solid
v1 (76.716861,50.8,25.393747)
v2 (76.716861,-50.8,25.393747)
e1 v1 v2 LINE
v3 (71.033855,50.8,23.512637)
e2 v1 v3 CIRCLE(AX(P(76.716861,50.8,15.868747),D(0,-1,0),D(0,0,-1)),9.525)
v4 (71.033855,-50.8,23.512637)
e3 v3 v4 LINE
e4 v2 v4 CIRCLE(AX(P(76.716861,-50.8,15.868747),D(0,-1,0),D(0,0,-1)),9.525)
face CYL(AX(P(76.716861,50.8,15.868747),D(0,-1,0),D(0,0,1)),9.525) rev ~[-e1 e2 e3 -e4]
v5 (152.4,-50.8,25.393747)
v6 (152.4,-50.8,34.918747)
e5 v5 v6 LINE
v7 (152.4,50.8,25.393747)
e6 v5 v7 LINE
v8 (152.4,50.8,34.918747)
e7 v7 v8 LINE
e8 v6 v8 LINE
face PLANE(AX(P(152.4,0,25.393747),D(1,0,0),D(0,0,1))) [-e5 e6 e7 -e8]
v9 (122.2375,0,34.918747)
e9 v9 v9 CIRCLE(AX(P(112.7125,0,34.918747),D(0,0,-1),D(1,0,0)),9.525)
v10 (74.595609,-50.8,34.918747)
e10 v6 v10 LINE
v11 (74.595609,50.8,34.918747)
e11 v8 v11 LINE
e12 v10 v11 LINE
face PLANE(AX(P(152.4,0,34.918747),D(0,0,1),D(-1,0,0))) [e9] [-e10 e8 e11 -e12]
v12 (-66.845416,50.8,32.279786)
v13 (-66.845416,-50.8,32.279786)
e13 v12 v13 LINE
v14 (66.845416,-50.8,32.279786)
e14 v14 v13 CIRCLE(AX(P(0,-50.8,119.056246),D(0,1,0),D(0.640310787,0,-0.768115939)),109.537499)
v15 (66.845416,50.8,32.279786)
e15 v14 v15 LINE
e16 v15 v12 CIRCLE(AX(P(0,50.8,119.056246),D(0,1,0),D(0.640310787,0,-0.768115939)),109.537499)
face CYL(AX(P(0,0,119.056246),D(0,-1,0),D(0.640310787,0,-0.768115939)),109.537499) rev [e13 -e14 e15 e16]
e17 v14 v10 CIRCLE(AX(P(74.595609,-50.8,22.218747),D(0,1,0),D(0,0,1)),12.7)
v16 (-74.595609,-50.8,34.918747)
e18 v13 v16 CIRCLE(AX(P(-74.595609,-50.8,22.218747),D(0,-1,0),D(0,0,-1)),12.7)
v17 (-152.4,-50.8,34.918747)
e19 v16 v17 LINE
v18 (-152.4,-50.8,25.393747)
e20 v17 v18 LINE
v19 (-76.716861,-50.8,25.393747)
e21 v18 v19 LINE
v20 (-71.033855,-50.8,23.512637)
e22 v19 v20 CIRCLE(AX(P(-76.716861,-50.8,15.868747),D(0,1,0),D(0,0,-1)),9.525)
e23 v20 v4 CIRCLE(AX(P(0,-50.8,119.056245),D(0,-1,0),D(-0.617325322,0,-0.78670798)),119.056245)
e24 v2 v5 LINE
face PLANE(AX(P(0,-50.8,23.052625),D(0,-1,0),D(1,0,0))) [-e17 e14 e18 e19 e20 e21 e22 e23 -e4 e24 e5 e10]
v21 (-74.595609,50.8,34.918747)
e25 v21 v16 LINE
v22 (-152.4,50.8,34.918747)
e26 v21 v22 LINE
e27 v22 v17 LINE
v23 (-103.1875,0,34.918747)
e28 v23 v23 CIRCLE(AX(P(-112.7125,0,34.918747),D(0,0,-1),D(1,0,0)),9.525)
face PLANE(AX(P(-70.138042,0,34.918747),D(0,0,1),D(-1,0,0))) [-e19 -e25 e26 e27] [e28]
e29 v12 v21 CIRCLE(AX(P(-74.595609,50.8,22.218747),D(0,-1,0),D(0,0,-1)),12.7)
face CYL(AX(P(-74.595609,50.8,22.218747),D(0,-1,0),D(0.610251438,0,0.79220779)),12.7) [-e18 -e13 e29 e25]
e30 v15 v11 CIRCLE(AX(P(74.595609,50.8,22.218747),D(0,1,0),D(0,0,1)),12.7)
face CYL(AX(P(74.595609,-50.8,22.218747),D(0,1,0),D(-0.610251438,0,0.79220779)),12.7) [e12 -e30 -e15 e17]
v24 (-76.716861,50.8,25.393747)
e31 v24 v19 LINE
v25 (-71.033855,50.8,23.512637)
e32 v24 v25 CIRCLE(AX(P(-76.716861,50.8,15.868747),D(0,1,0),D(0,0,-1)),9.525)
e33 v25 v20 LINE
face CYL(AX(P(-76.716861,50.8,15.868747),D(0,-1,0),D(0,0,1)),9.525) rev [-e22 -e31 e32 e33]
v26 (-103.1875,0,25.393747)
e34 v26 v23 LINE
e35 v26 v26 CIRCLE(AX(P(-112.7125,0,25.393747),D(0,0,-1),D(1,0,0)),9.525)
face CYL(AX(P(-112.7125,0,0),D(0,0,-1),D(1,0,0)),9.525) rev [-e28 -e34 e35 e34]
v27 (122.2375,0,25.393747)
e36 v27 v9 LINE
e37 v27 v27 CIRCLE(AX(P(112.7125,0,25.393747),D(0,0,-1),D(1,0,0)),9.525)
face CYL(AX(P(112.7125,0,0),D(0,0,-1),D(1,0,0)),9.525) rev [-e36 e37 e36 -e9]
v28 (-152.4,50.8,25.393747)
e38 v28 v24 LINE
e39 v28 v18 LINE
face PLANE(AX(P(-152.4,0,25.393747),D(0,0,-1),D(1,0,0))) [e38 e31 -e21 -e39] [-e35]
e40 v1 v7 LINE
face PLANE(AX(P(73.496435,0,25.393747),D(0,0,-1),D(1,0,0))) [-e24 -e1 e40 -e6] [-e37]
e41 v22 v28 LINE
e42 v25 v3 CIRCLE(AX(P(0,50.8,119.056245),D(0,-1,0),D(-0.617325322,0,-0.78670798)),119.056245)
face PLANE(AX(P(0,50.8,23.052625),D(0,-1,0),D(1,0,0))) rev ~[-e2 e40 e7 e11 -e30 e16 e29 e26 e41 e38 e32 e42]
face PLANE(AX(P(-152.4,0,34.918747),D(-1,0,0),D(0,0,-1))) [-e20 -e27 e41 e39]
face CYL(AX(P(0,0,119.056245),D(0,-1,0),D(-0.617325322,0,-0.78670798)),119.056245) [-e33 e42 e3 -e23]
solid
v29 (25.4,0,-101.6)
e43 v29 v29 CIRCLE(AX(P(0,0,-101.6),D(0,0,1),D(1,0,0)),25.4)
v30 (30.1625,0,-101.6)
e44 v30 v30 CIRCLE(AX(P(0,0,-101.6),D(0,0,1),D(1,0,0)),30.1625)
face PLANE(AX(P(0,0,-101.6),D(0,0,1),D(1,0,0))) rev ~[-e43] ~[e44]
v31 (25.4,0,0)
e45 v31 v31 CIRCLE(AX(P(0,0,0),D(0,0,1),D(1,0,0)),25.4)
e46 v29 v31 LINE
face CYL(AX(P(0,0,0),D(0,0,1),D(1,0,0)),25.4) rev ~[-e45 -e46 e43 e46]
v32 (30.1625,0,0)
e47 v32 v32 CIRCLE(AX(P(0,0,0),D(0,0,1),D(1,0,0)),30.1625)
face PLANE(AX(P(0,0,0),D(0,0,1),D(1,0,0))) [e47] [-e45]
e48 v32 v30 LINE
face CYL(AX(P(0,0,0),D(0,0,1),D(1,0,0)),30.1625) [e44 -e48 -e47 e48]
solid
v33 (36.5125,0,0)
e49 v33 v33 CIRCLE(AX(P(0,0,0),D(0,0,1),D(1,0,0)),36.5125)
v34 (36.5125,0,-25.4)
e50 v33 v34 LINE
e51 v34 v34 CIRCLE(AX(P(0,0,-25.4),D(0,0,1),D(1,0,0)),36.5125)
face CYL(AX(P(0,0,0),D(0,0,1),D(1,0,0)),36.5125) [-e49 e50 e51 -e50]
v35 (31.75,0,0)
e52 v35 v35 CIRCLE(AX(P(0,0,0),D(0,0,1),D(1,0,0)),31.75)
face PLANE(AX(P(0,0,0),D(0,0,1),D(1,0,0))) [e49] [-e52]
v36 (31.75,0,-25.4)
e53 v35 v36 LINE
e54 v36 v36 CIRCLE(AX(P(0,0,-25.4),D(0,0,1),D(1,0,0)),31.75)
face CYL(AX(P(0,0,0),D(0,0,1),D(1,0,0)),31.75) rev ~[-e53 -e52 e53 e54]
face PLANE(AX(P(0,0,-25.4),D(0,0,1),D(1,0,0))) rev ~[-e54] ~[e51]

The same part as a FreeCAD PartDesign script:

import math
import FreeCAD as App
import Part
import Sketcher
from FreeCAD import Vector
Q = App.Units.Quantity


def edges_at(feature, points):
    """Names of the edges that pass closest to the given points."""
    edges = feature.Shape.Edges
    near = lambda p: min(range(len(edges)), key=lambda i: edges[i].distToShape(Part.Vertex(*p))[0])
    return sorted({f"Edge{near(p) + 1}" for p in points})

doc = App.newDocument("Part")
body = doc.addObject("PartDesign::Body", "Body")

# Sketch on XY plane
sketch1 = body.newObject("Sketcher::SketchObject", "Sketch")
sketch1.AttachmentSupport = (doc.getObject("XY_Plane"), [""])
sketch1.MapMode = "FlatFace"
sketch1.addGeometry([
    Part.Circle(Vector(0, 0, 0), Vector(0, 0, 1), 30.1625),
    Part.Circle(Vector(0, 0, 0), Vector(0, 0, 1), 25.4),
], False)
sketch1.addConstraint([
    Sketcher.Constraint("Coincident", 0, 3, -1, 1),
    Sketcher.Constraint("Coincident", 1, 3, -1, 1),
    Sketcher.Constraint("Diameter", 1, Q("2 in")),
    Sketcher.Constraint("Diameter", 0, Q("2.375 in")),
])
pad1 = body.newObject("PartDesign::Pad", "Pad")
pad1.Profile = sketch1
pad1.Length = Q("1 in")
pad1.Reversed = True

# Sketch on XY plane
sketch2 = body.newObject("Sketcher::SketchObject", "Sketch001")
sketch2.AttachmentSupport = (doc.getObject("XY_Plane"), [""])
sketch2.MapMode = "FlatFace"
sketch2.addGeometry([
    Part.Circle(Vector(0, 0, 0), Vector(0, 0, 1), 30.1625),
    Part.Circle(Vector(0, 0, 0), Vector(0, 0, 1), 25.4),
], False)
sketch2.addConstraint([
    Sketcher.Constraint("Coincident", 0, 3, -1, 1),
    Sketcher.Constraint("Coincident", 1, 3, -1, 1),
    Sketcher.Constraint("Diameter", 1, Q("2 in")),
    Sketcher.Constraint("Diameter", 0, Q("2.375 in")),
])
pad2 = body.newObject("PartDesign::Pad", "Pad001")
pad2.Profile = sketch2
pad2.Length = Q("4 in")
pad2.Reversed = True
body2 = doc.addObject("PartDesign::Body", "Body001")

# Sketch on XY plane
sketch3 = body2.newObject("Sketcher::SketchObject", "Sketch002")
sketch3.AttachmentSupport = (doc.getObject("XY_Plane001"), [""])
sketch3.MapMode = "FlatFace"
sketch3.addGeometry([
    Part.Circle(Vector(0, 0, 0), Vector(0, 0, 1), 36.5125),
    Part.Circle(Vector(0, 0, 0), Vector(0, 0, 1), 31.75),
], False)
sketch3.addConstraint([
    Sketcher.Constraint("Coincident", 0, 3, -1, 1),
    Sketcher.Constraint("Coincident", 1, 3, -1, 1),
    Sketcher.Constraint("Diameter", 1, Q("2.5 in")),
    Sketcher.Constraint("Diameter", 0, Q("2.875 in")),
])
pad3 = body2.newObject("PartDesign::Pad", "Pad002")
pad3.Profile = sketch3
pad3.Length = Q("1 in")
pad3.Reversed = True
body3 = doc.addObject("PartDesign::Body", "Body002")

# Sketch on XZ plane
sketch4 = body3.newObject("Sketcher::SketchObject", "Sketch003")
sketch4.AttachmentSupport = (doc.getObject("XZ_Plane002"), [""])
sketch4.MapMode = "FlatFace"
sketch4.addGeometry([
    Part.ArcOfCircle(Part.Circle(Vector(0, 119.056246, 0), Vector(0, 0, 1), 109.537499), math.radians(-129.814998), math.radians(-50.185002)),  # 0
    Part.LineSegment(Vector(-70.138042, 34.918747, 0), Vector(-152.4, 34.918747, 0)),  # 1
    Part.LineSegment(Vector(-152.4, 34.918747, 0), Vector(-152.4, 25.393747, 0)),  # 2
    Part.LineSegment(Vector(-152.4, 25.393747, 0), Vector(-73.496435, 25.393747, 0)),  # 3
    Part.ArcOfCircle(Part.Circle(Vector(0, 119.056245, 0), Vector(0, 0, 1), 119.056245), math.radians(-128.121077), math.radians(-51.878923)),  # 4
    Part.LineSegment(Vector(73.496435, 25.393747, 0), Vector(152.4, 25.393747, 0)),  # 5
    Part.LineSegment(Vector(152.4, 25.393747, 0), Vector(152.4, 34.918747, 0)),  # 6
    Part.LineSegment(Vector(152.4, 34.918747, 0), Vector(70.138042, 34.918747, 0)),  # 7
], False)
sketch4.addConstraint([
    Sketcher.Constraint("Coincident", 0, 1, 1, 1),
    Sketcher.Constraint("Coincident", 1, 2, 2, 1),
    Sketcher.Constraint("Coincident", 2, 2, 3, 1),
    Sketcher.Constraint("Coincident", 3, 2, 4, 1),
    Sketcher.Constraint("Coincident", 4, 2, 5, 1),
    Sketcher.Constraint("Coincident", 5, 2, 6, 1),
    Sketcher.Constraint("Coincident", 6, 2, 7, 1),
    Sketcher.Constraint("Coincident", 7, 2, 0, 2),
    Sketcher.Constraint("Horizontal", 1),
    Sketcher.Constraint("Vertical", 2),
    Sketcher.Constraint("Horizontal", 3),
    Sketcher.Constraint("Horizontal", 5),
    Sketcher.Constraint("Vertical", 6),
    Sketcher.Constraint("Horizontal", 7),
    Sketcher.Constraint("Coincident", 4, 3, 0, 3),
    Sketcher.Constraint("Symmetric", 3, 2, 4, 2, -2),
    Sketcher.Constraint("Symmetric", 1, 2, 6, 2, -2),
    Sketcher.Constraint("DistanceX", 1, 2, -1, 1, Q("6 in")),
    Sketcher.Constraint("Radius", 0, Q("4.3125 in")),
    Sketcher.Constraint("DistanceY", 2, 2, 2, 1, Q("0.375 in")),
    Sketcher.Constraint("DistanceY", 0, 1, 4, 3, Q("3.3124999 in")),
    Sketcher.Constraint("Radius", 4, 119.056245),
    Sketcher.Constraint("DistanceY", -1, 1, 0, 3, 119.056246),
])
pad4 = body3.newObject("PartDesign::Pad", "Pad003")
pad4.Profile = sketch4
pad4.Length = Q("4 in")
pad4.Midplane = True
doc.recompute()

fillet = body3.newObject("PartDesign::Fillet", "Fillet")
fillet.Base = (pad4, edges_at(pad4, [(70.138, 0, 34.919), (-70.138, 0, 34.919)]))
fillet.Radius = Q("0.5 in")
doc.recompute()

fillet2 = body3.newObject("PartDesign::Fillet", "Fillet001")
fillet2.Base = (fillet, edges_at(fillet, [(-73.496, 0, 25.394), (73.496, 0, 25.394)]))
fillet2.Radius = Q("0.375 in")

# Sketch on XY plane
sketch5 = body3.newObject("Sketcher::SketchObject", "Sketch004")
sketch5.AttachmentSupport = (doc.getObject("XY_Plane002"), [""])
sketch5.MapMode = "FlatFace"
sketch5.addGeometry([
    Part.Circle(Vector(-112.7125, 0, 0), Vector(0, 0, 1), 9.525),
    Part.Circle(Vector(112.7125, 0, 0), Vector(0, 0, 1), 9.525),
], False)
sketch5.addConstraint([
    Sketcher.Constraint("Equal", 0, 1),
    Sketcher.Constraint("Symmetric", 0, 3, 1, 3, -1, 1),
    Sketcher.Constraint("PointOnObject", 0, 3, -1),
    Sketcher.Constraint("Diameter", 0, Q("0.75 in")),
    Sketcher.Constraint("DistanceX", 0, 3, -1, 1, Q("4.4375 in")),
])
pocket1 = body3.newObject("PartDesign::Pocket", "Pocket")
pocket1.Profile = sketch5
pocket1.Type = "ThroughAll"
pocket1.Reversed = True

doc.recompute()
